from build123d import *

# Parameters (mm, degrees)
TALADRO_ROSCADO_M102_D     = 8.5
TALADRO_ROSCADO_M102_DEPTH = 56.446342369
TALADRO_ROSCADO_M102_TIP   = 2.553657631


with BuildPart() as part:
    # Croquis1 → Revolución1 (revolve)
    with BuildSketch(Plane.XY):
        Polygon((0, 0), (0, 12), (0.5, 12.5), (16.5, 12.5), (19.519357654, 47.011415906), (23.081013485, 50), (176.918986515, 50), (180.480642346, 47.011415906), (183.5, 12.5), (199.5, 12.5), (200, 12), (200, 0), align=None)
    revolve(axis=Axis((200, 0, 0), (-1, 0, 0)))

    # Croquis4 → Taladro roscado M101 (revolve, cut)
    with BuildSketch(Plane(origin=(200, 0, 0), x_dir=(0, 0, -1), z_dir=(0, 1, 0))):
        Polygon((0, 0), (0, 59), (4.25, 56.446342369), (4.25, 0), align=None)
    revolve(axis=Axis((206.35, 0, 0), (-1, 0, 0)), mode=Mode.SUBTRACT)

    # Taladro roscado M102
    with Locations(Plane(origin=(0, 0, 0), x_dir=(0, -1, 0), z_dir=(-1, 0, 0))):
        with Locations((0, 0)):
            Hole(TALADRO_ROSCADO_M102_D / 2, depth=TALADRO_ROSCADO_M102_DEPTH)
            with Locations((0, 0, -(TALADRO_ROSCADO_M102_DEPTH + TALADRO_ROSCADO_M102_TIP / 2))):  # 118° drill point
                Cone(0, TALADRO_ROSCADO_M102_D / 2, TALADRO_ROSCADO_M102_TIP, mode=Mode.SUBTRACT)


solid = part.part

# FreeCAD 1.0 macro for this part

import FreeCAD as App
import Part
import Sketcher
from FreeCAD import Vector
Q = App.Units.Quantity

doc = App.newDocument("Part")
body = doc.addObject("PartDesign::Body", "Body")

# Sketch on XY plane
sketch1 = doc.addObject("Sketcher::SketchObject", "Sketch")
body.addObject(sketch1)
sketch1.AttachmentSupport = (doc.XY_Plane, [""])
sketch1.MapMode = "FlatFace"
sketch1.addGeometry(Part.LineSegment(Vector(0, 12, 0), Vector(0, 0, 0)), False)
sketch1.addGeometry(Part.LineSegment(Vector(0, 0, 0), Vector(200, 0, 0)), False)
sketch1.addGeometry(Part.LineSegment(Vector(200, 0, 0), Vector(200, 12, 0)), False)
sketch1.addGeometry(Part.LineSegment(Vector(200, 12, 0), Vector(199.5, 12.5, 0)), False)
sketch1.addGeometry(Part.LineSegment(Vector(199.5, 12.5, 0), Vector(183.5, 12.5, 0)), False)
sketch1.addGeometry(Part.LineSegment(Vector(183.5, 12.5, 0), Vector(180.480642, 47.011416, 0)), False)
sketch1.addGeometry(Part.LineSegment(Vector(180.480642, 47.011416, 0), Vector(176.918987, 50, 0)), False)
sketch1.addGeometry(Part.LineSegment(Vector(176.918987, 50, 0), Vector(23.081013, 50, 0)), False)
sketch1.addGeometry(Part.LineSegment(Vector(23.081013, 50, 0), Vector(19.519358, 47.011416, 0)), False)
sketch1.addGeometry(Part.LineSegment(Vector(19.519358, 47.011416, 0), Vector(16.5, 12.5, 0)), False)
sketch1.addGeometry(Part.LineSegment(Vector(16.5, 12.5, 0), Vector(0.5, 12.5, 0)), False)
sketch1.addGeometry(Part.LineSegment(Vector(0.5, 12.5, 0), Vector(0, 12, 0)), False)
sketch1.addConstraint(Sketcher.Constraint("Coincident", 0, 2, 1, 1))
sketch1.addConstraint(Sketcher.Constraint("Coincident", 1, 2, 2, 1))
sketch1.addConstraint(Sketcher.Constraint("Coincident", 2, 2, 3, 1))
sketch1.addConstraint(Sketcher.Constraint("Coincident", 3, 2, 4, 1))
sketch1.addConstraint(Sketcher.Constraint("Coincident", 4, 2, 5, 1))
sketch1.addConstraint(Sketcher.Constraint("Coincident", 5, 2, 6, 1))
sketch1.addConstraint(Sketcher.Constraint("Coincident", 6, 2, 7, 1))
sketch1.addConstraint(Sketcher.Constraint("Coincident", 7, 2, 8, 1))
sketch1.addConstraint(Sketcher.Constraint("Coincident", 8, 2, 9, 1))
sketch1.addConstraint(Sketcher.Constraint("Coincident", 9, 2, 10, 1))
sketch1.addConstraint(Sketcher.Constraint("Coincident", 10, 2, 11, 1))
sketch1.addConstraint(Sketcher.Constraint("Coincident", 11, 2, 0, 1))
sketch1.addConstraint(Sketcher.Constraint("Vertical", 0))
sketch1.addConstraint(Sketcher.Constraint("Horizontal", 1))
sketch1.addConstraint(Sketcher.Constraint("Vertical", 2))
sketch1.addConstraint(Sketcher.Constraint("Horizontal", 4))
sketch1.addConstraint(Sketcher.Constraint("Horizontal", 7))
sketch1.addConstraint(Sketcher.Constraint("Horizontal", 10))
sketch1.addConstraint(Sketcher.Constraint("Coincident", 0, 2, -1, 1))
sketch1.addConstraint(Sketcher.Constraint("Perpendicular", 3, 11))
sketch1.addConstraint(Sketcher.Constraint("Horizontal", 5, 2, 8, 2))
sketch1.addConstraint(Sketcher.Constraint("Horizontal", 4, 2, 9, 2))
sketch1.addConstraint(Sketcher.Constraint("Horizontal", 2, 2, 11, 2))
sketch1.addConstraint(Sketcher.Constraint("Equal", 4, 10))
sketch1.addConstraint(Sketcher.Constraint("Equal", 6, 8))
sketch1.addConstraint(Sketcher.Constraint("Equal", 5, 9))
sketch1.addConstraint(Sketcher.Constraint("Equal", 3, 11))
sketch1.addConstraint(Sketcher.Constraint("DistanceX", 1, 1, 1, 2, 200.0))
sketch1.addConstraint(Sketcher.Constraint("DistanceX", 4, 2, 4, 1, 16.0))
sketch1.addConstraint(Sketcher.Constraint("DistanceY", 0, 2, 0, 1, 12.0))
sketch1.addConstraint(Sketcher.Constraint("Angle", 5, Q("95 deg")))
sketch1.addConstraint(Sketcher.Constraint("Angle", 6, Q("140 deg")))
sketch1.addConstraint(Sketcher.Constraint("DistanceY", -1, 1, 6, 2, 50.0))
sketch1.addConstraint(Sketcher.Constraint("DistanceX", 9, 2, 4, 2, 167.0))
sketch1.addConstraint(Sketcher.Constraint("Distance", 6, 4.649411))
revolution = doc.addObject("PartDesign::Revolution", "Revolution")
body.addObject(revolution)
revolution.Profile = sketch1
revolution.ReferenceAxis = (sketch1, ["H_Axis"])
revolution.Angle = 360

# Sketch on XZ plane
sketch2 = doc.addObject("Sketcher::SketchObject", "Sketch001")
body.addObject(sketch2)
sketch2.AttachmentSupport = (doc.XZ_Plane, [""])
sketch2.MapMode = "FlatFace"
sketch2.addGeometry(Part.LineSegment(Vector(141, 0, 0), Vector(200, 0, 0)), False)
sketch2.addGeometry(Part.LineSegment(Vector(200, 0, 0), Vector(200, -4.25, 0)), False)
sketch2.addGeometry(Part.LineSegment(Vector(200, -4.25, 0), Vector(143.553658, -4.25, 0)), False)
sketch2.addGeometry(Part.LineSegment(Vector(143.553658, -4.25, 0), Vector(141, 0, 0)), False)
sketch2.addConstraint(Sketcher.Constraint("Coincident", 0, 2, 1, 1))
sketch2.addConstraint(Sketcher.Constraint("Coincident", 1, 2, 2, 1))
sketch2.addConstraint(Sketcher.Constraint("Coincident", 2, 2, 3, 1))
sketch2.addConstraint(Sketcher.Constraint("Coincident", 3, 2, 0, 1))
sketch2.addConstraint(Sketcher.Constraint("Horizontal", 0))
sketch2.addConstraint(Sketcher.Constraint("Vertical", 1))
sketch2.addConstraint(Sketcher.Constraint("Horizontal", 2))
sketch2.addConstraint(Sketcher.Constraint("PointOnObject", 0, 2, -1))
sketch2.addConstraint(Sketcher.Constraint("DistanceX", 0, 1, 0, 2, 59.0))
sketch2.addConstraint(Sketcher.Constraint("Angle", 3, Q("121 deg")))
sketch2.addConstraint(Sketcher.Constraint("DistanceX", -1, 1, 0, 2, 200.0))
sketch2.addConstraint(Sketcher.Constraint("DistanceY", 1, 2, 1, 1, 4.25))
groove = doc.addObject("PartDesign::Groove", "Groove")
body.addObject(groove)
groove.Profile = sketch2
groove.ReferenceAxis = (sketch2, ["H_Axis"])
groove.Angle = 360

# Sketch on YZ plane
sketch3 = doc.addObject("Sketcher::SketchObject", "Sketch002")
body.addObject(sketch3)
sketch3.AttachmentSupport = (doc.YZ_Plane, [""])
sketch3.MapMode = "FlatFace"
sketch3.addGeometry(Part.Circle(Vector(0, 0, 0), Vector(0, 0, 1), 4.25), False)
sketch3.addConstraint(Sketcher.Constraint("Coincident", 0, 3, -1, 1))
sketch3.addConstraint(Sketcher.Constraint("Diameter", 0, 8.5))
doc.recompute()
hole = doc.addObject("PartDesign::Hole", "Hole")
body.addObject(hole)
hole.Profile = sketch3
hole.ThreadType = "None"
hole.Diameter = 8.5
hole.DepthType = "Dimension"
hole.Depth = 56.446342
hole.DrillPoint = "Angled"
hole.DrillPointAngle = 118
hole.Reversed = True

doc.recompute()
